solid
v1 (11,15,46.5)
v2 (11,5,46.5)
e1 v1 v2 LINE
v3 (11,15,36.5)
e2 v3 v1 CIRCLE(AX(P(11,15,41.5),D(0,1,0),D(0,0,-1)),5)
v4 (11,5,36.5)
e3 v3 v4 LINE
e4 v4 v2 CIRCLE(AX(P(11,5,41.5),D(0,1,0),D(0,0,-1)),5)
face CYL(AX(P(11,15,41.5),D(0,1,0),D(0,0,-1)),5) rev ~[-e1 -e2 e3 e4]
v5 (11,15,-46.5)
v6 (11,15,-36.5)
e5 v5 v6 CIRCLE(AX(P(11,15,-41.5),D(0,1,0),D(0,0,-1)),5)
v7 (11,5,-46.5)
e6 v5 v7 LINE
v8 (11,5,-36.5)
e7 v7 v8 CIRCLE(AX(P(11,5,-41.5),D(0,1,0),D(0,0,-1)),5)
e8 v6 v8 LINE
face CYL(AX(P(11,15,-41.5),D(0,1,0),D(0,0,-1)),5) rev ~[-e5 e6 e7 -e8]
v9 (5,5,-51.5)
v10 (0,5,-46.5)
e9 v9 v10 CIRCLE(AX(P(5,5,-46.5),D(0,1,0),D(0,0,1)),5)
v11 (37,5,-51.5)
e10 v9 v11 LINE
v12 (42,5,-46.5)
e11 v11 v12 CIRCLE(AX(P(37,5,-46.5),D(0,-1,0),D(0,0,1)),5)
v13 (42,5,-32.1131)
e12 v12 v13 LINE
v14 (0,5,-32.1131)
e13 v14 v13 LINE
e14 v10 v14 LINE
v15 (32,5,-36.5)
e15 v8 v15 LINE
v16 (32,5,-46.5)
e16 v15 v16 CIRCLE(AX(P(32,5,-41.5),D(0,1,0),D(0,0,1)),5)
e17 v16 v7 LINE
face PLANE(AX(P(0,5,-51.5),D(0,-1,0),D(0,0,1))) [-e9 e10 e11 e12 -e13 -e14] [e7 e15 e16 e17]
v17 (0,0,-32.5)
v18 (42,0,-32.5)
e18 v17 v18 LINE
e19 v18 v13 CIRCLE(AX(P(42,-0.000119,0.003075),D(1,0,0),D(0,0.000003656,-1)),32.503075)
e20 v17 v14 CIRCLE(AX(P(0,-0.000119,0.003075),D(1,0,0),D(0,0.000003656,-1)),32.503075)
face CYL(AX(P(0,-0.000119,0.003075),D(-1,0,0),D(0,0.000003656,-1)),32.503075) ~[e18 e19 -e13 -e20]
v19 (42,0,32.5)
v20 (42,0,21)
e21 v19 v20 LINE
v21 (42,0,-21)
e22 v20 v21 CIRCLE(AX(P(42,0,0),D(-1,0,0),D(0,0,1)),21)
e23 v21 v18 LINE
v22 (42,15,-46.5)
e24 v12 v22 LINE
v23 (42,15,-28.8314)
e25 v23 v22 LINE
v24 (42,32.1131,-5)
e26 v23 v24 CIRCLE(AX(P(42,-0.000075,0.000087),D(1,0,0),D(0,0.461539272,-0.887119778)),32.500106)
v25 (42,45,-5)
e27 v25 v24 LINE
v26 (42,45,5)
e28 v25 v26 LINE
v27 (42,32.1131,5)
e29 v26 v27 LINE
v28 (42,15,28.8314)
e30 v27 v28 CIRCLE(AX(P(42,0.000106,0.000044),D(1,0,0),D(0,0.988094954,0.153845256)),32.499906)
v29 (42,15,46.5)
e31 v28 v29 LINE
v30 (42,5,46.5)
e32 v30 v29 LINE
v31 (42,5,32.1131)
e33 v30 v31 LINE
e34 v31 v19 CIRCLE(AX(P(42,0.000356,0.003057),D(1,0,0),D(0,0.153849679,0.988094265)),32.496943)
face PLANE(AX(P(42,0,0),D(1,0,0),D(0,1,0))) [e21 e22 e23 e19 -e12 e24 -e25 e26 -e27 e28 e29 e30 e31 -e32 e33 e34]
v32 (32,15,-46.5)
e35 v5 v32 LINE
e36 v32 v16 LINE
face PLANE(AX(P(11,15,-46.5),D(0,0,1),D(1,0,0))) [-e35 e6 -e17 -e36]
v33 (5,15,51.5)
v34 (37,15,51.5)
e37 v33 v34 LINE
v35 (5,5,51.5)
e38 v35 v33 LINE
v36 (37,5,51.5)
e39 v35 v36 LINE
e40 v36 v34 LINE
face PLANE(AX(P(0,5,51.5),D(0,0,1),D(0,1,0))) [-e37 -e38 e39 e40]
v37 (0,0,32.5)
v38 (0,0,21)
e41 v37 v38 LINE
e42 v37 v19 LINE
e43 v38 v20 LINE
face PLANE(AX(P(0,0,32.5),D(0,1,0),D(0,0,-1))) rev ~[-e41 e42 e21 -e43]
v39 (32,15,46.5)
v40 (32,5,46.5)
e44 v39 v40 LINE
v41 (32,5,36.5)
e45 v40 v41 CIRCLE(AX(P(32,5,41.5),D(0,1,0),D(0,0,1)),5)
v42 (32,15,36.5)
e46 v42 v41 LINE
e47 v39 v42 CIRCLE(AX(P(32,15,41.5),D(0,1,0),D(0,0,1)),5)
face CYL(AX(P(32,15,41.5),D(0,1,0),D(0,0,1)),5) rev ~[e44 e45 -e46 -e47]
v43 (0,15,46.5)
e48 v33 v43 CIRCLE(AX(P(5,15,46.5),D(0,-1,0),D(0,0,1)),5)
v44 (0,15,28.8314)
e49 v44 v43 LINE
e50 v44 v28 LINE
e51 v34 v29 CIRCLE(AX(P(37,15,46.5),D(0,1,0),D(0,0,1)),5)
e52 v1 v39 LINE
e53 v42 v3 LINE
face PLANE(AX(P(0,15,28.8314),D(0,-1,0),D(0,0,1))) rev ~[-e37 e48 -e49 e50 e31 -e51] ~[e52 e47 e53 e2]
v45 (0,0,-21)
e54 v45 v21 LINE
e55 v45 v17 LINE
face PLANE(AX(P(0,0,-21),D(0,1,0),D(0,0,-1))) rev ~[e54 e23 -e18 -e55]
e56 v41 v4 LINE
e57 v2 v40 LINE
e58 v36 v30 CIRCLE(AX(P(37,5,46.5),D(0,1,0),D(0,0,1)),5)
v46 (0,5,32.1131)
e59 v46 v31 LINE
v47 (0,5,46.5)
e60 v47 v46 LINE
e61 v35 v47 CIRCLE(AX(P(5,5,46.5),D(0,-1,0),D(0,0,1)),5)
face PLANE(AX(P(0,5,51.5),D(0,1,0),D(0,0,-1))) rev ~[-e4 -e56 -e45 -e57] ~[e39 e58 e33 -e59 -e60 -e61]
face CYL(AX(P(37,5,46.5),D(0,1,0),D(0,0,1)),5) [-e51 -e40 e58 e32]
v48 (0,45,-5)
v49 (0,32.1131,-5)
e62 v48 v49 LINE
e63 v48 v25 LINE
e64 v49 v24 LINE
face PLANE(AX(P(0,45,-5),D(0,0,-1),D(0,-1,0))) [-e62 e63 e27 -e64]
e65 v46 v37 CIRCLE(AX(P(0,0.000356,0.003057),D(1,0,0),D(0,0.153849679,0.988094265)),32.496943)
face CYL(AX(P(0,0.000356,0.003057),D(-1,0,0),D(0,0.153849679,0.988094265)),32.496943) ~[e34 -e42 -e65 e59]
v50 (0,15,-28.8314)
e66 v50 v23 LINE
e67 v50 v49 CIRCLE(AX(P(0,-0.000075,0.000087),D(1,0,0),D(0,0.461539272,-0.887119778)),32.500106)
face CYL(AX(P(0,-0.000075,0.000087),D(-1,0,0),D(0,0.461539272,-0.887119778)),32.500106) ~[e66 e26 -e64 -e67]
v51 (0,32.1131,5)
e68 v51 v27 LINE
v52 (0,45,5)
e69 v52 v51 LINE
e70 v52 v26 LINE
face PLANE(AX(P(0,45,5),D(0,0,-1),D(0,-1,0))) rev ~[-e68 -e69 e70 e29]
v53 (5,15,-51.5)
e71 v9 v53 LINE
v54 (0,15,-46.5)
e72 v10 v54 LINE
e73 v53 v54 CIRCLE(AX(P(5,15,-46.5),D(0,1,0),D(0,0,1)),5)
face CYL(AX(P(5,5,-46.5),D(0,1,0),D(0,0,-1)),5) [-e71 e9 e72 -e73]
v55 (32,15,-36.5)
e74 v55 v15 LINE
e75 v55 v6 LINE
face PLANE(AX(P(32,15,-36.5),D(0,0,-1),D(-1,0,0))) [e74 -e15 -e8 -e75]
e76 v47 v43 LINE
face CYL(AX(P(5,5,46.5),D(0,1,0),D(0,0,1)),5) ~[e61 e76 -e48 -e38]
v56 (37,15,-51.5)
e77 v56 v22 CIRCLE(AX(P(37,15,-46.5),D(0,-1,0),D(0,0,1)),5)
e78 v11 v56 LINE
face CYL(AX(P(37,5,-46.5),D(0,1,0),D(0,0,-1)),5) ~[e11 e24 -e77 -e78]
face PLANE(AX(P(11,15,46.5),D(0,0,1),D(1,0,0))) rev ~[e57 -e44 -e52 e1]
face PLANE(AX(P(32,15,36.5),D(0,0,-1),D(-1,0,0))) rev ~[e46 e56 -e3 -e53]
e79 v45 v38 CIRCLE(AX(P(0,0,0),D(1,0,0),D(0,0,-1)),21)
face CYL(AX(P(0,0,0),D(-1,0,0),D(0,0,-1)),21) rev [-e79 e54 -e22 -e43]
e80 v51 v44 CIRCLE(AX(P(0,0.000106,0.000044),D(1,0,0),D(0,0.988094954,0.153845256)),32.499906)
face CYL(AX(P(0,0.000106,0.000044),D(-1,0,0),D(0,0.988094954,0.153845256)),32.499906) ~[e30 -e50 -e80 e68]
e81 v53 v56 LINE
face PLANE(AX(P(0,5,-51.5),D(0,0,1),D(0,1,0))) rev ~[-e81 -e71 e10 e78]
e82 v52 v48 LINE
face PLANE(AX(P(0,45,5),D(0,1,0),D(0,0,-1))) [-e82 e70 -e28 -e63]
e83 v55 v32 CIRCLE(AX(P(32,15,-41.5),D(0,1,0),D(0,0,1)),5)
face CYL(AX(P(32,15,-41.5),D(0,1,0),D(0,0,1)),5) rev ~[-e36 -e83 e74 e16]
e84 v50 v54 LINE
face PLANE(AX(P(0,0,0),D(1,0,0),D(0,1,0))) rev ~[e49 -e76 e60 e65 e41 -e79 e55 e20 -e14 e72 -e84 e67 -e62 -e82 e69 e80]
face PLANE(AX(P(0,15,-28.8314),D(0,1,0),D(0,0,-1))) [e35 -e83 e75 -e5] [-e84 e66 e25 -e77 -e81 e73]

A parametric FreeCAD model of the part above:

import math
import FreeCAD as App
import Part
import Sketcher
from FreeCAD import Vector


def edges_at(feature, points):
    """Names of the edges that pass closest to the given points."""
    edges = feature.Shape.Edges
    near = lambda p: min(range(len(edges)), key=lambda i: edges[i].distToShape(Part.Vertex(*p))[0])
    return sorted({f"Edge{near(p) + 1}" for p in points})

doc = App.newDocument("Part")
body = doc.addObject("PartDesign::Body", "Body")

sketch1 = doc.addObject("Sketcher::SketchObject", "Sketch")
body.addObject(sketch1)
sketch1.AttachmentSupport = (doc.YZ_Plane, [""])
sketch1.MapMode = "FlatFace"
sketch1.addGeometry([
    Part.ArcOfCircle(Part.Circle(Vector(0, 0, 0), Vector(0, 0, 1), 21), math.radians(-90), math.radians(90)),
    Part.LineSegment(Vector(0, -21, 0), Vector(0, -32.5, 0)),
    Part.ArcOfCircle(Part.Circle(Vector(-0.000119, 0.003075, 0), Vector(0, 0, 1), 32.503075), math.radians(-89.999791), math.radians(-81.150749)),
    Part.LineSegment(Vector(5, -32.1131, 0), Vector(5, -51.5, 0)),
    Part.LineSegment(Vector(5, -51.5, 0), Vector(15, -51.5, 0)),
    Part.LineSegment(Vector(15, -51.5, 0), Vector(15, -28.8314, 0)),
    Part.ArcOfCircle(Part.Circle(Vector(0, 0, 0), Vector(0, 0, 1), 32.500018), math.radians(-62.513568), math.radians(-8.849878)),
    Part.LineSegment(Vector(32.1131, -5, 0), Vector(45, -5, 0)),
    Part.LineSegment(Vector(45, -5, 0), Vector(45, 5, 0)),
    Part.LineSegment(Vector(45, 5, 0), Vector(32.1131, 5, 0)),
    Part.ArcOfCircle(Part.Circle(Vector(0, 0, 0), Vector(0, 0, 1), 32.499994), math.radians(8.849878), math.radians(62.513568)),
    Part.LineSegment(Vector(15, 28.8314, 0), Vector(15, 51.5, 0)),
    Part.LineSegment(Vector(15, 51.5, 0), Vector(5, 51.5, 0)),
    Part.LineSegment(Vector(5, 51.5, 0), Vector(5, 32.1131, 0)),
    Part.ArcOfCircle(Part.Circle(Vector(0.000356, 0.003057, 0), Vector(0, 0, 1), 32.496943), math.radians(81.149912), math.radians(90.000627)),
    Part.LineSegment(Vector(0, 32.5, 0), Vector(0, 21, 0)),
], False)
sketch1.addConstraint([
    Sketcher.Constraint("Coincident", 0, 1, 1, 1),
    Sketcher.Constraint("Coincident", 1, 2, 2, 1),
    Sketcher.Constraint("Coincident", 2, 2, 3, 1),
    Sketcher.Constraint("Coincident", 3, 2, 4, 1),
    Sketcher.Constraint("Coincident", 4, 2, 5, 1),
    Sketcher.Constraint("Coincident", 5, 2, 6, 1),
    Sketcher.Constraint("Coincident", 6, 2, 7, 1),
    Sketcher.Constraint("Coincident", 7, 2, 8, 1),
    Sketcher.Constraint("Coincident", 8, 2, 9, 1),
    Sketcher.Constraint("Coincident", 9, 2, 10, 1),
    Sketcher.Constraint("Coincident", 10, 2, 11, 1),
    Sketcher.Constraint("Coincident", 11, 2, 12, 1),
    Sketcher.Constraint("Coincident", 12, 2, 13, 1),
    Sketcher.Constraint("Coincident", 13, 2, 14, 1),
    Sketcher.Constraint("Coincident", 14, 2, 15, 1),
    Sketcher.Constraint("Coincident", 15, 2, 0, 2),
    Sketcher.Constraint("Vertical", 1),
    Sketcher.Constraint("Vertical", 3),
    Sketcher.Constraint("Horizontal", 4),
    Sketcher.Constraint("Vertical", 5),
    Sketcher.Constraint("Horizontal", 7),
    Sketcher.Constraint("Vertical", 8),
    Sketcher.Constraint("Horizontal", 9),
    Sketcher.Constraint("Vertical", 11),
    Sketcher.Constraint("Horizontal", 12),
    Sketcher.Constraint("Vertical", 13),
    Sketcher.Constraint("Vertical", 15),
    Sketcher.Constraint("Coincident", 0, 3, -1, 1),
    Sketcher.Constraint("Coincident", 6, 3, -1, 1),
    Sketcher.Constraint("Coincident", 10, 3, -1, 1),
    Sketcher.Constraint("PointOnObject", 2, 3, -2),
    Sketcher.Constraint("PointOnObject", 0, 1, -2),
    Sketcher.Constraint("PointOnObject", 14, 2, -2),
    Sketcher.Constraint("Radius", 0, 21.0),
    Sketcher.Constraint("Radius", 6, 32.5),
    Sketcher.Constraint("Radius", 10, 32.5),
    Sketcher.Constraint("DistanceX", 4, 1, 4, 2, 10.0),
    Sketcher.Constraint("DistanceX", 12, 2, 12, 1, 10.0),
    Sketcher.Constraint("DistanceY", 8, 1, 8, 2, 10.0),
    Sketcher.Constraint("DistanceX", -1, 1, 2, 2, 5.0),
    Sketcher.Constraint("DistanceY", 6, 2, -1, 1, 5.0),
    Sketcher.Constraint("DistanceX", -1, 1, 7, 2, 45.0),
    Sketcher.Constraint("DistanceX", -1, 1, 12, 2, 5.0),
    Sketcher.Constraint("DistanceY", 1, 2, 1, 1, 11.5),
    Sketcher.Constraint("DistanceY", 15, 2, 15, 1, 11.5),
    Sketcher.Constraint("Radius", 2, 32.503),
    Sketcher.Constraint("Radius", 14, 32.497),
    Sketcher.Constraint("DistanceY", 3, 2, 1, 2, 19.0),
    Sketcher.Constraint("DistanceY", 14, 2, 12, 2, 19.0),
    Sketcher.Constraint("DistanceX", 14, 3, 7, 2, 44.9996),
])
pad1 = doc.addObject("PartDesign::Pad", "Pad")
body.addObject(pad1)
pad1.Profile = sketch1
pad1.Length = 42
doc.recompute()

fillet = doc.addObject("PartDesign::Fillet", "Fillet")
body.addObject(fillet)
fillet.Base = (pad1, edges_at(pad1, [
    (42, 10, 51.5),
    (0, 10, 51.5),
    (42, 10, -51.5),
    (0, 10, -51.5),
]))
fillet.Radius = 5

sketch2 = doc.addObject("Sketcher::SketchObject", "Sketch001")
body.addObject(sketch2)
sketch2.AttachmentSupport = (doc.XZ_Plane, [""])
sketch2.MapMode = "FlatFace"
sketch2.AttachmentOffset = App.Placement(Vector(0, 0, -15), App.Rotation())
sketch2.addGeometry([
    Part.LineSegment(Vector(32, 36, 0), Vector(11, 36, 0)),
    Part.ArcOfCircle(Part.Circle(Vector(11, 42, 0), Vector(0, 0, 1), 5), math.radians(90), math.radians(270)),
    Part.LineSegment(Vector(11, 46, 0), Vector(32, 46, 0)),
    Part.ArcOfCircle(Part.Circle(Vector(32, 42, 0), Vector(0, 0, 1), 5), math.radians(-90), math.radians(90)),
    Part.LineSegment(Vector(32, -46, 0), Vector(11, -46, 0)),
    Part.ArcOfCircle(Part.Circle(Vector(11, -42, 0), Vector(0, 0, 1), 5), math.radians(90), math.radians(270)),
    Part.LineSegment(Vector(11, -36, 0), Vector(32, -36, 0)),
    Part.ArcOfCircle(Part.Circle(Vector(32, -42, 0), Vector(0, 0, 1), 5), math.radians(-90), math.radians(90)),
], False)
sketch2.addConstraint([
    Sketcher.Constraint("Tangent", 0, 2, 1, 2),
    Sketcher.Constraint("Tangent", 1, 1, 2, 1),
    Sketcher.Constraint("Tangent", 2, 2, 3, 2),
    Sketcher.Constraint("Tangent", 3, 1, 0, 1),
    Sketcher.Constraint("Tangent", 4, 2, 5, 2),
    Sketcher.Constraint("Tangent", 5, 1, 6, 1),
    Sketcher.Constraint("Tangent", 6, 2, 7, 2),
    Sketcher.Constraint("Tangent", 7, 1, 4, 1),
    Sketcher.Constraint("Horizontal", 0),
    Sketcher.Constraint("Horizontal", 2),
    Sketcher.Constraint("Horizontal", 4),
    Sketcher.Constraint("Horizontal", 6),
    Sketcher.Constraint("Equal", 3, 5),
    Sketcher.Constraint("Symmetric", 1, 3, 5, 3, -1),
    Sketcher.Constraint("Vertical", 3, 3, 7, 3),
    Sketcher.Constraint("Radius", 1, 5.0),
    Sketcher.Constraint("DistanceX", 0, 2, 0, 1, 21.0),
    Sketcher.Constraint("DistanceY", 5, 3, 1, 3, 83.0),
    Sketcher.Constraint("DistanceX", -1, 1, 1, 3, 11.0),
])
pocket1 = doc.addObject("PartDesign::Pocket", "Pocket")
body.addObject(pocket1)
pocket1.Profile = sketch2
pocket1.Length = 42
pocket1.Reversed = True

doc.recompute()
